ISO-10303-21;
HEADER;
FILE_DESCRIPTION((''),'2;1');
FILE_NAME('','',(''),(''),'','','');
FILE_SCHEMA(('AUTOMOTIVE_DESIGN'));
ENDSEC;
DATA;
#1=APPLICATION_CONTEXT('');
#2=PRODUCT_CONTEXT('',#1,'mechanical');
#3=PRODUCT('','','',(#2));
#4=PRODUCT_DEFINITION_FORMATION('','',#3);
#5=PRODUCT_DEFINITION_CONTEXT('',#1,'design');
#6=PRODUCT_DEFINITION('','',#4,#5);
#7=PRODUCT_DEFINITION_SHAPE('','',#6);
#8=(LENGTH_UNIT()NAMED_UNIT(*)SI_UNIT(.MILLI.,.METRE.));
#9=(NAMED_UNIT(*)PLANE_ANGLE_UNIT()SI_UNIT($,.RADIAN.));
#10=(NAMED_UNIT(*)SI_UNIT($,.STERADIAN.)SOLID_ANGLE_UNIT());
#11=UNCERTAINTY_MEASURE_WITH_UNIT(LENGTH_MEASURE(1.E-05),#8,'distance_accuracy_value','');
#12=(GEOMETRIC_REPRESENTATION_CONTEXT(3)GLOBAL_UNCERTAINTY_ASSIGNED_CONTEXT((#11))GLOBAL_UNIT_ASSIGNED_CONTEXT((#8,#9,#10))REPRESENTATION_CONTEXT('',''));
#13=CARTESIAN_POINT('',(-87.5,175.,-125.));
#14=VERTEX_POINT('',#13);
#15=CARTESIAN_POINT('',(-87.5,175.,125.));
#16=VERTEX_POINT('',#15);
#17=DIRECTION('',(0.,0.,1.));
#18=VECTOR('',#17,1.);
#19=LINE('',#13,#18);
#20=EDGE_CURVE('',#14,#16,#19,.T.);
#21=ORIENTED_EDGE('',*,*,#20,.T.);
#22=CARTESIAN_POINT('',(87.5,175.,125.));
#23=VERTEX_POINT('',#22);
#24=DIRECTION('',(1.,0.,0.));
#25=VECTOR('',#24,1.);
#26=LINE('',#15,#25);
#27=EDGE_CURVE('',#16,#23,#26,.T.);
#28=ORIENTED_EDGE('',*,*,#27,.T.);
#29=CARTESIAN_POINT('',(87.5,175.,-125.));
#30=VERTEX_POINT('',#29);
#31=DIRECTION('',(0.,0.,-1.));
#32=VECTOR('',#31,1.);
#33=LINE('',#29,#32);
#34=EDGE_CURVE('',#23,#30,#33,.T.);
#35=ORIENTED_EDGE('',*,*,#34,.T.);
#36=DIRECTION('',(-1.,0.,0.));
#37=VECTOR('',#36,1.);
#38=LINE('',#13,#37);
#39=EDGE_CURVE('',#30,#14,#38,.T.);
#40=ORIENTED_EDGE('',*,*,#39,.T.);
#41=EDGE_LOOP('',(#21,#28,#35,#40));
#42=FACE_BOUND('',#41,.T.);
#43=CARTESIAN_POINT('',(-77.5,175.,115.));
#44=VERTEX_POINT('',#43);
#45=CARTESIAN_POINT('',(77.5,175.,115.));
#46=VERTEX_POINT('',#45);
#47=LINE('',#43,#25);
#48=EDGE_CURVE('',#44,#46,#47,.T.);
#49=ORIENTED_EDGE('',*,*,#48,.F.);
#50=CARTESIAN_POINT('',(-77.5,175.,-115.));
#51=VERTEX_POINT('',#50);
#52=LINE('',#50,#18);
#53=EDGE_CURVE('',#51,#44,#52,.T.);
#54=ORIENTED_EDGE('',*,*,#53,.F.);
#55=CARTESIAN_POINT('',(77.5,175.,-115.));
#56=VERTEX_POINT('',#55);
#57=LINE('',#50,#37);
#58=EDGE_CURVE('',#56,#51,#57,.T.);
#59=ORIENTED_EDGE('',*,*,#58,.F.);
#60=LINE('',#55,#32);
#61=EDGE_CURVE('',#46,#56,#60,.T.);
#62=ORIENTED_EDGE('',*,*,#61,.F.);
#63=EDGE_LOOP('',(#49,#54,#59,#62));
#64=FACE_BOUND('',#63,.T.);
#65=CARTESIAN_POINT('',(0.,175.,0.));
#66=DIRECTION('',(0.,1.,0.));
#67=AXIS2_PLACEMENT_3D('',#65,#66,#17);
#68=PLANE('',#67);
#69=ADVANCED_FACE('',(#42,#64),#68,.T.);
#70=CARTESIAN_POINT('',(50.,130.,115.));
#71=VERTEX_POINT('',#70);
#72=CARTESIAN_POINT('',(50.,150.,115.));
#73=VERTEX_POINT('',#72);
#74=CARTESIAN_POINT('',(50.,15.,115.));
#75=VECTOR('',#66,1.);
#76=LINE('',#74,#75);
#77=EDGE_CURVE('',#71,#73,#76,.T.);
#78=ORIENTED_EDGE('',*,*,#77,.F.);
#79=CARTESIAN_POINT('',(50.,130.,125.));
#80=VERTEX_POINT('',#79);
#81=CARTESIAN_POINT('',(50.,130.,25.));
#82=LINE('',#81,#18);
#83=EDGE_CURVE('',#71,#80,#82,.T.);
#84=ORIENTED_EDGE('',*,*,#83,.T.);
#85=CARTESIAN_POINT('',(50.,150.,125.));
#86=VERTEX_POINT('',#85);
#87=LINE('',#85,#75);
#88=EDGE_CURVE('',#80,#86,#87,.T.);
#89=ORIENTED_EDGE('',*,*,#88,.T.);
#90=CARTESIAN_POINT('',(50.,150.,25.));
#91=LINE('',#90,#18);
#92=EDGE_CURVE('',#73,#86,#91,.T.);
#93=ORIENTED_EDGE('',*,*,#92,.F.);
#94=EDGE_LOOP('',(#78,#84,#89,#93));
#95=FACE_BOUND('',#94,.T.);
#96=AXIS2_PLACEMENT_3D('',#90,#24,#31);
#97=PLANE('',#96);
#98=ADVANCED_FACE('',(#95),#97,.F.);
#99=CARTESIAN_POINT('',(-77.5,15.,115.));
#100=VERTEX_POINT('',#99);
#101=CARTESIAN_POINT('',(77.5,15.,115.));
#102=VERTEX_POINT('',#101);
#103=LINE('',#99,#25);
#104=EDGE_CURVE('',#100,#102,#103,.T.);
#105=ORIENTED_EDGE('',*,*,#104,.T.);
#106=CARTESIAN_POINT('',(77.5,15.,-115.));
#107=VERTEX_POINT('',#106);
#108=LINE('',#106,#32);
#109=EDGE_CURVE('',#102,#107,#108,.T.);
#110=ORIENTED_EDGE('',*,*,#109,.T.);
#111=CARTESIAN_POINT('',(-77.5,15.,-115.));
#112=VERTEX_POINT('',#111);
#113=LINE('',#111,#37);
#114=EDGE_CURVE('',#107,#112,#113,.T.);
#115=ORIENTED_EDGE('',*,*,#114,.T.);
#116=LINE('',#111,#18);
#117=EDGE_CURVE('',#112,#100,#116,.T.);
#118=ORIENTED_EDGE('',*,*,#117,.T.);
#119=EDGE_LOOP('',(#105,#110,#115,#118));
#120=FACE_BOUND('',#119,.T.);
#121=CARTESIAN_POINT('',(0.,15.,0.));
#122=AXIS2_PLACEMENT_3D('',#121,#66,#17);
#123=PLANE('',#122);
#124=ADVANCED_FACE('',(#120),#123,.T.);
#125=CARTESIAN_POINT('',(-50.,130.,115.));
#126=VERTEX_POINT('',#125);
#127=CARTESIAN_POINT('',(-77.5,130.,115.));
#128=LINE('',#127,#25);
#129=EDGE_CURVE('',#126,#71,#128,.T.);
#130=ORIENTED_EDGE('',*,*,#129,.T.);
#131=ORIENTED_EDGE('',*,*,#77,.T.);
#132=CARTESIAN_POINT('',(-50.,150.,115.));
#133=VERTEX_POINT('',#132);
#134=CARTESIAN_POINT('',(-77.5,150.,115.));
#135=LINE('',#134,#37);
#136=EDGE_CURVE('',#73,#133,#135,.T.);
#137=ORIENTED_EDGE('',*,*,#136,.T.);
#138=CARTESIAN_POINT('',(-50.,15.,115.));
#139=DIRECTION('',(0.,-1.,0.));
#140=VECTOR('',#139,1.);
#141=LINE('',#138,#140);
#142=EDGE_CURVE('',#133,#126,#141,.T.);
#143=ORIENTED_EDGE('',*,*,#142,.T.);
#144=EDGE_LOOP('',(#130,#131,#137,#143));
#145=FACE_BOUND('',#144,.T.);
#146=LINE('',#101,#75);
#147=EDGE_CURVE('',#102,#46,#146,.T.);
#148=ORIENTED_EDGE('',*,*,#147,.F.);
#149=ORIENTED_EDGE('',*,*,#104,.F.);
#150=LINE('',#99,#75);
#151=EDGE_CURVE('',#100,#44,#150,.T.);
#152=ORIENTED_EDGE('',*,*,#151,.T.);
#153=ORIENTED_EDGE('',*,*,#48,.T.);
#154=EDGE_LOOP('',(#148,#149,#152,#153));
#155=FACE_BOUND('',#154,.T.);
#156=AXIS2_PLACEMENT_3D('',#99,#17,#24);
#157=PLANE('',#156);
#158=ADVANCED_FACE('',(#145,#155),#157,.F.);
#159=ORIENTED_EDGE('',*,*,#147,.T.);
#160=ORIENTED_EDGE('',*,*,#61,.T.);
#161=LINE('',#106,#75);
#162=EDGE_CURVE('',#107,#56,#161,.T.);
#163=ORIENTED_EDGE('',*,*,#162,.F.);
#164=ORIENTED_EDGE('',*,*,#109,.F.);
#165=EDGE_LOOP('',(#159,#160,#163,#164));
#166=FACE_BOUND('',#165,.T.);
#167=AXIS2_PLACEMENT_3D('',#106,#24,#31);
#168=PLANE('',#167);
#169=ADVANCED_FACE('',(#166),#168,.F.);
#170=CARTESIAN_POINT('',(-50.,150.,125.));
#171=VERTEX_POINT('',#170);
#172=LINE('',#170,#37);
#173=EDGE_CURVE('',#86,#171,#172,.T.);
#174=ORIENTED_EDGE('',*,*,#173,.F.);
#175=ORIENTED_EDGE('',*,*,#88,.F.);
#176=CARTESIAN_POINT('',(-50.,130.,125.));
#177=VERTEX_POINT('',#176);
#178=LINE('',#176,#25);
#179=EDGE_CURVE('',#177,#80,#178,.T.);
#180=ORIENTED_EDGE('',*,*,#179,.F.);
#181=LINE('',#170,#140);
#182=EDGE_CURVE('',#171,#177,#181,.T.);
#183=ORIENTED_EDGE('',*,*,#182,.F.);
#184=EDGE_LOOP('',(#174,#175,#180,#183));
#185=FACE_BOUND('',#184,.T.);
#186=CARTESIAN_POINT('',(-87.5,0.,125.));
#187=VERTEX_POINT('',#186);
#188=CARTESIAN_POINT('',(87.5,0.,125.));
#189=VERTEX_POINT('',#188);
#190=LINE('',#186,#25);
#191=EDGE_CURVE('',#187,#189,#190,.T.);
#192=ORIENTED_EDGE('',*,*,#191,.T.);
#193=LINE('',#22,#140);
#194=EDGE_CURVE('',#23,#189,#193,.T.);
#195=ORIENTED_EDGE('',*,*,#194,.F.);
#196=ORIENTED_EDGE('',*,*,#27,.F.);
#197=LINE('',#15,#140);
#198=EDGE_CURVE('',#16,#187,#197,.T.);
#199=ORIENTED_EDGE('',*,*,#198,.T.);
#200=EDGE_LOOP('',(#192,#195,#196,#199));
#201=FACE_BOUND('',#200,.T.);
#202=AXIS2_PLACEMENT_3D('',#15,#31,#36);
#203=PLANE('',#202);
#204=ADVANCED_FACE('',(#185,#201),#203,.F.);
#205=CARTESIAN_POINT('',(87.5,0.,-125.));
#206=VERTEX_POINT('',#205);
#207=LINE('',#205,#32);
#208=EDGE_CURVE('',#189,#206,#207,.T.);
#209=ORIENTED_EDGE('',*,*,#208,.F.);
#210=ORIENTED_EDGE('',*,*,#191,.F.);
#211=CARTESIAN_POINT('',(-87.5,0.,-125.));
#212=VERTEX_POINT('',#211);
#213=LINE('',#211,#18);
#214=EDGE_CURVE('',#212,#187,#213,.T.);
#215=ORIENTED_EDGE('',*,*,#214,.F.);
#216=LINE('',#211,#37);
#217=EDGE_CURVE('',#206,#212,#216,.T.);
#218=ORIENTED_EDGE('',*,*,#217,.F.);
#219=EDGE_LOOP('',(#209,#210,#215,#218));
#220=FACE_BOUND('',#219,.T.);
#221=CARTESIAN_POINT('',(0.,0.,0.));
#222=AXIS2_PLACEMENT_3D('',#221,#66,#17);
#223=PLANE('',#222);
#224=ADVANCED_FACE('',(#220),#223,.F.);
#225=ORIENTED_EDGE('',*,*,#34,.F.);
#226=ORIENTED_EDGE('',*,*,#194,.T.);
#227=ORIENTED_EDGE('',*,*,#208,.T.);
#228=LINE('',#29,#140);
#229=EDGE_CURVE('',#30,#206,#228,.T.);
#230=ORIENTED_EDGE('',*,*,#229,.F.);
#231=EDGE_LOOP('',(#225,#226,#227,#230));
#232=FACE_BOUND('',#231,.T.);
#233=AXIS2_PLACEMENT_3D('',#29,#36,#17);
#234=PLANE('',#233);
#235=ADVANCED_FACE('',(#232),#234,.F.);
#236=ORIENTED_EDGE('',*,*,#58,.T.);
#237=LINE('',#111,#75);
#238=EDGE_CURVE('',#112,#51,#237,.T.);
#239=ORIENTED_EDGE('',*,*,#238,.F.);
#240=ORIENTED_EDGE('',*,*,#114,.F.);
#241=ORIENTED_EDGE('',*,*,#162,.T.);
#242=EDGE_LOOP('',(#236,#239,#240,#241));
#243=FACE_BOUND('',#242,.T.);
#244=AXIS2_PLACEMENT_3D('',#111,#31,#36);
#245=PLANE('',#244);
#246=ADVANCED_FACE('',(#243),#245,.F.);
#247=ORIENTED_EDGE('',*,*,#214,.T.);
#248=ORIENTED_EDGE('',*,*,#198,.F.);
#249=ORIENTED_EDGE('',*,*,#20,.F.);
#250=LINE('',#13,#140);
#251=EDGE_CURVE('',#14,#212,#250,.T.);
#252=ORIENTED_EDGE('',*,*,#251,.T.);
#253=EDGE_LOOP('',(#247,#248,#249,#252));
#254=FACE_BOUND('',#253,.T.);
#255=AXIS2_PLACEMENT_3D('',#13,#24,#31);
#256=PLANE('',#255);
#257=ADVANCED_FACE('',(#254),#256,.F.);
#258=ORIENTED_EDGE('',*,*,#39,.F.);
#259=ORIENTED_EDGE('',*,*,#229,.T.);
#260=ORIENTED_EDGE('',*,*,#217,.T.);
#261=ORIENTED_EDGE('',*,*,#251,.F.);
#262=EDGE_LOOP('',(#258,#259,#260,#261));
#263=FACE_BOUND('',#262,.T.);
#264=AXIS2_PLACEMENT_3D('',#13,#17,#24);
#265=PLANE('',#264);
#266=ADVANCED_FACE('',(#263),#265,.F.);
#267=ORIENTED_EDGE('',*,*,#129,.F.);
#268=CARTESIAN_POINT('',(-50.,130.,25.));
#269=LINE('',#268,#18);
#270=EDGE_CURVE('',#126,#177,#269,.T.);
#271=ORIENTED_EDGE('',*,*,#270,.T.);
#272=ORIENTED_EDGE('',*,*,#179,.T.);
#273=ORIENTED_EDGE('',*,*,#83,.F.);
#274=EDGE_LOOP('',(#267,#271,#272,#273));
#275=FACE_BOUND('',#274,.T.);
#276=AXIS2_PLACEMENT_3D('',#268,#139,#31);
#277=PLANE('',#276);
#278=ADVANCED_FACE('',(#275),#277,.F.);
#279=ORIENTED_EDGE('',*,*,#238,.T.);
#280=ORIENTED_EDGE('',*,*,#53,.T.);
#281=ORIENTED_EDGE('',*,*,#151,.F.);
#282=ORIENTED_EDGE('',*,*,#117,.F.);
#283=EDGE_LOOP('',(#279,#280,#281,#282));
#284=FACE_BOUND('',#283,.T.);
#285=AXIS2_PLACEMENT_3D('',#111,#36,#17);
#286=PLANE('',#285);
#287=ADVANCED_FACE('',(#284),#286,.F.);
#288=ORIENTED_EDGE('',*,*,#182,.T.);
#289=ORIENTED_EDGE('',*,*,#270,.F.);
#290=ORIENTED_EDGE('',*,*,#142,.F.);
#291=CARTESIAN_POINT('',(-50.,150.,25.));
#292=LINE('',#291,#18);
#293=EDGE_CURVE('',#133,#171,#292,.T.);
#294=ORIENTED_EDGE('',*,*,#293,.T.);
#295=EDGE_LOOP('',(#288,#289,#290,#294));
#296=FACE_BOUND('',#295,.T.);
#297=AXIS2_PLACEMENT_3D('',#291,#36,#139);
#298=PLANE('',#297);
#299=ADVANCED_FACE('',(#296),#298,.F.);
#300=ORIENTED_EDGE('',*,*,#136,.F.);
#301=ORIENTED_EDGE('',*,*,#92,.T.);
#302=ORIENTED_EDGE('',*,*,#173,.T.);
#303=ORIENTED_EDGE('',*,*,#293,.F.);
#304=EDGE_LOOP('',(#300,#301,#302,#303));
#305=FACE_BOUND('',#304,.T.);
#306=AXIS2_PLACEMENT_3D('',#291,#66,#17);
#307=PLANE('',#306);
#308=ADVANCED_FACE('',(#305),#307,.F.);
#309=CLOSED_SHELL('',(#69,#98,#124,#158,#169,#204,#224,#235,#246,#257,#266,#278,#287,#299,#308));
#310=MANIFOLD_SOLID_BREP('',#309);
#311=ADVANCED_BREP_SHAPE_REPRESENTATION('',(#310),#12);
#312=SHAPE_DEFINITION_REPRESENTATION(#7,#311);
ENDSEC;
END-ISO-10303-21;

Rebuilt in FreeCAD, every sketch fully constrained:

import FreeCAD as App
import Part
import Sketcher

V = App.Vector


def add_polygon(sketch, points):
    """Adds a closed chain of lines whose ends are joined by coincident constraints."""
    first, n = sketch.GeometryCount, len(points)
    for a, b in zip(points, points[1:] + points[:1]):
        sketch.addGeometry(Part.LineSegment(App.Vector(*a, 0), App.Vector(*b, 0)), False)
    for i in range(n):
        sketch.addConstraint(Sketcher.Constraint("Coincident", first + i, 2, first + (i + 1) % n, 1))

doc = App.newDocument("Part")
body = doc.addObject("PartDesign::Body", "Body")

# Sketch on XZ plane
sketch1 = body.newObject("Sketcher::SketchObject", "Sketch")
sketch1.AttachmentSupport = (doc.getObject("XZ_Plane"), [""])
sketch1.MapMode = "FlatFace"
add_polygon(sketch1, [(-88, -125), (-88, 125), (88, 125), (88, -125)])  # lines 0-3
sketch1.addConstraint([
    Sketcher.Constraint("Vertical", 0),
    Sketcher.Constraint("Horizontal", 1),
    Sketcher.Constraint("Vertical", 2),
    Sketcher.Constraint("Horizontal", 3),
    Sketcher.Constraint("Symmetric", 0, 2, 2, 2, -1, 1),
    Sketcher.Constraint("DistanceX", 1, 1, 1, 2, 175.0),
    Sketcher.Constraint("DistanceY", 0, 1, 0, 2, 250.0),
])
pad1 = body.newObject("PartDesign::Pad", "Pad")
pad1.Profile = sketch1
pad1.Length = 175
pad1.Reversed = True

# Sketch on XZ plane
sketch2 = body.newObject("Sketcher::SketchObject", "Sketch001")
sketch2.AttachmentSupport = (doc.getObject("XZ_Plane"), [""])
sketch2.MapMode = "FlatFace"
sketch2.AttachmentOffset = App.Placement(V(0, 0, -175), App.Rotation())
add_polygon(sketch2, [(-78, -115), (-78, 115), (78, 115), (78, -115)])  # lines 0-3
sketch2.addConstraint([
    Sketcher.Constraint("Vertical", 0),
    Sketcher.Constraint("Horizontal", 1),
    Sketcher.Constraint("Vertical", 2),
    Sketcher.Constraint("Horizontal", 3),
    Sketcher.Constraint("Symmetric", 0, 2, 2, 2, -1, 1),
    Sketcher.Constraint("DistanceX", 1, 1, 1, 2, 155.0),
    Sketcher.Constraint("DistanceY", 0, 1, 0, 2, 230.0),
])
pocket1 = body.newObject("PartDesign::Pocket", "Pocket")
pocket1.Profile = sketch2
pocket1.Length = 160
pocket1.Reversed = True

# Sketch on XY plane
sketch3 = body.newObject("Sketcher::SketchObject", "Sketch002")
sketch3.AttachmentSupport = (doc.getObject("XY_Plane"), [""])
sketch3.MapMode = "FlatFace"
sketch3.AttachmentOffset = App.Placement(V(0, 0, 125), App.Rotation())
add_polygon(sketch3, [(-50, 150), (-50, 130), (50, 130), (50, 150)])  # lines 0-3
sketch3.addConstraint([
    Sketcher.Constraint("Vertical", 0),
    Sketcher.Constraint("Horizontal", 1),
    Sketcher.Constraint("Vertical", 2),
    Sketcher.Constraint("Horizontal", 3),
    Sketcher.Constraint("DistanceX", 1, 1, 1, 2, 100.0),
    Sketcher.Constraint("DistanceY", 0, 2, 0, 1, 20.0),
    Sketcher.Constraint("DistanceX", 0, 2, -1, 1, 50.0),
    Sketcher.Constraint("DistanceY", -1, 1, 0, 2, 130.0),
])
pocket2 = body.newObject("PartDesign::Pocket", "Pocket001")
pocket2.Profile = sketch3
pocket2.Length = 100

doc.recompute()
